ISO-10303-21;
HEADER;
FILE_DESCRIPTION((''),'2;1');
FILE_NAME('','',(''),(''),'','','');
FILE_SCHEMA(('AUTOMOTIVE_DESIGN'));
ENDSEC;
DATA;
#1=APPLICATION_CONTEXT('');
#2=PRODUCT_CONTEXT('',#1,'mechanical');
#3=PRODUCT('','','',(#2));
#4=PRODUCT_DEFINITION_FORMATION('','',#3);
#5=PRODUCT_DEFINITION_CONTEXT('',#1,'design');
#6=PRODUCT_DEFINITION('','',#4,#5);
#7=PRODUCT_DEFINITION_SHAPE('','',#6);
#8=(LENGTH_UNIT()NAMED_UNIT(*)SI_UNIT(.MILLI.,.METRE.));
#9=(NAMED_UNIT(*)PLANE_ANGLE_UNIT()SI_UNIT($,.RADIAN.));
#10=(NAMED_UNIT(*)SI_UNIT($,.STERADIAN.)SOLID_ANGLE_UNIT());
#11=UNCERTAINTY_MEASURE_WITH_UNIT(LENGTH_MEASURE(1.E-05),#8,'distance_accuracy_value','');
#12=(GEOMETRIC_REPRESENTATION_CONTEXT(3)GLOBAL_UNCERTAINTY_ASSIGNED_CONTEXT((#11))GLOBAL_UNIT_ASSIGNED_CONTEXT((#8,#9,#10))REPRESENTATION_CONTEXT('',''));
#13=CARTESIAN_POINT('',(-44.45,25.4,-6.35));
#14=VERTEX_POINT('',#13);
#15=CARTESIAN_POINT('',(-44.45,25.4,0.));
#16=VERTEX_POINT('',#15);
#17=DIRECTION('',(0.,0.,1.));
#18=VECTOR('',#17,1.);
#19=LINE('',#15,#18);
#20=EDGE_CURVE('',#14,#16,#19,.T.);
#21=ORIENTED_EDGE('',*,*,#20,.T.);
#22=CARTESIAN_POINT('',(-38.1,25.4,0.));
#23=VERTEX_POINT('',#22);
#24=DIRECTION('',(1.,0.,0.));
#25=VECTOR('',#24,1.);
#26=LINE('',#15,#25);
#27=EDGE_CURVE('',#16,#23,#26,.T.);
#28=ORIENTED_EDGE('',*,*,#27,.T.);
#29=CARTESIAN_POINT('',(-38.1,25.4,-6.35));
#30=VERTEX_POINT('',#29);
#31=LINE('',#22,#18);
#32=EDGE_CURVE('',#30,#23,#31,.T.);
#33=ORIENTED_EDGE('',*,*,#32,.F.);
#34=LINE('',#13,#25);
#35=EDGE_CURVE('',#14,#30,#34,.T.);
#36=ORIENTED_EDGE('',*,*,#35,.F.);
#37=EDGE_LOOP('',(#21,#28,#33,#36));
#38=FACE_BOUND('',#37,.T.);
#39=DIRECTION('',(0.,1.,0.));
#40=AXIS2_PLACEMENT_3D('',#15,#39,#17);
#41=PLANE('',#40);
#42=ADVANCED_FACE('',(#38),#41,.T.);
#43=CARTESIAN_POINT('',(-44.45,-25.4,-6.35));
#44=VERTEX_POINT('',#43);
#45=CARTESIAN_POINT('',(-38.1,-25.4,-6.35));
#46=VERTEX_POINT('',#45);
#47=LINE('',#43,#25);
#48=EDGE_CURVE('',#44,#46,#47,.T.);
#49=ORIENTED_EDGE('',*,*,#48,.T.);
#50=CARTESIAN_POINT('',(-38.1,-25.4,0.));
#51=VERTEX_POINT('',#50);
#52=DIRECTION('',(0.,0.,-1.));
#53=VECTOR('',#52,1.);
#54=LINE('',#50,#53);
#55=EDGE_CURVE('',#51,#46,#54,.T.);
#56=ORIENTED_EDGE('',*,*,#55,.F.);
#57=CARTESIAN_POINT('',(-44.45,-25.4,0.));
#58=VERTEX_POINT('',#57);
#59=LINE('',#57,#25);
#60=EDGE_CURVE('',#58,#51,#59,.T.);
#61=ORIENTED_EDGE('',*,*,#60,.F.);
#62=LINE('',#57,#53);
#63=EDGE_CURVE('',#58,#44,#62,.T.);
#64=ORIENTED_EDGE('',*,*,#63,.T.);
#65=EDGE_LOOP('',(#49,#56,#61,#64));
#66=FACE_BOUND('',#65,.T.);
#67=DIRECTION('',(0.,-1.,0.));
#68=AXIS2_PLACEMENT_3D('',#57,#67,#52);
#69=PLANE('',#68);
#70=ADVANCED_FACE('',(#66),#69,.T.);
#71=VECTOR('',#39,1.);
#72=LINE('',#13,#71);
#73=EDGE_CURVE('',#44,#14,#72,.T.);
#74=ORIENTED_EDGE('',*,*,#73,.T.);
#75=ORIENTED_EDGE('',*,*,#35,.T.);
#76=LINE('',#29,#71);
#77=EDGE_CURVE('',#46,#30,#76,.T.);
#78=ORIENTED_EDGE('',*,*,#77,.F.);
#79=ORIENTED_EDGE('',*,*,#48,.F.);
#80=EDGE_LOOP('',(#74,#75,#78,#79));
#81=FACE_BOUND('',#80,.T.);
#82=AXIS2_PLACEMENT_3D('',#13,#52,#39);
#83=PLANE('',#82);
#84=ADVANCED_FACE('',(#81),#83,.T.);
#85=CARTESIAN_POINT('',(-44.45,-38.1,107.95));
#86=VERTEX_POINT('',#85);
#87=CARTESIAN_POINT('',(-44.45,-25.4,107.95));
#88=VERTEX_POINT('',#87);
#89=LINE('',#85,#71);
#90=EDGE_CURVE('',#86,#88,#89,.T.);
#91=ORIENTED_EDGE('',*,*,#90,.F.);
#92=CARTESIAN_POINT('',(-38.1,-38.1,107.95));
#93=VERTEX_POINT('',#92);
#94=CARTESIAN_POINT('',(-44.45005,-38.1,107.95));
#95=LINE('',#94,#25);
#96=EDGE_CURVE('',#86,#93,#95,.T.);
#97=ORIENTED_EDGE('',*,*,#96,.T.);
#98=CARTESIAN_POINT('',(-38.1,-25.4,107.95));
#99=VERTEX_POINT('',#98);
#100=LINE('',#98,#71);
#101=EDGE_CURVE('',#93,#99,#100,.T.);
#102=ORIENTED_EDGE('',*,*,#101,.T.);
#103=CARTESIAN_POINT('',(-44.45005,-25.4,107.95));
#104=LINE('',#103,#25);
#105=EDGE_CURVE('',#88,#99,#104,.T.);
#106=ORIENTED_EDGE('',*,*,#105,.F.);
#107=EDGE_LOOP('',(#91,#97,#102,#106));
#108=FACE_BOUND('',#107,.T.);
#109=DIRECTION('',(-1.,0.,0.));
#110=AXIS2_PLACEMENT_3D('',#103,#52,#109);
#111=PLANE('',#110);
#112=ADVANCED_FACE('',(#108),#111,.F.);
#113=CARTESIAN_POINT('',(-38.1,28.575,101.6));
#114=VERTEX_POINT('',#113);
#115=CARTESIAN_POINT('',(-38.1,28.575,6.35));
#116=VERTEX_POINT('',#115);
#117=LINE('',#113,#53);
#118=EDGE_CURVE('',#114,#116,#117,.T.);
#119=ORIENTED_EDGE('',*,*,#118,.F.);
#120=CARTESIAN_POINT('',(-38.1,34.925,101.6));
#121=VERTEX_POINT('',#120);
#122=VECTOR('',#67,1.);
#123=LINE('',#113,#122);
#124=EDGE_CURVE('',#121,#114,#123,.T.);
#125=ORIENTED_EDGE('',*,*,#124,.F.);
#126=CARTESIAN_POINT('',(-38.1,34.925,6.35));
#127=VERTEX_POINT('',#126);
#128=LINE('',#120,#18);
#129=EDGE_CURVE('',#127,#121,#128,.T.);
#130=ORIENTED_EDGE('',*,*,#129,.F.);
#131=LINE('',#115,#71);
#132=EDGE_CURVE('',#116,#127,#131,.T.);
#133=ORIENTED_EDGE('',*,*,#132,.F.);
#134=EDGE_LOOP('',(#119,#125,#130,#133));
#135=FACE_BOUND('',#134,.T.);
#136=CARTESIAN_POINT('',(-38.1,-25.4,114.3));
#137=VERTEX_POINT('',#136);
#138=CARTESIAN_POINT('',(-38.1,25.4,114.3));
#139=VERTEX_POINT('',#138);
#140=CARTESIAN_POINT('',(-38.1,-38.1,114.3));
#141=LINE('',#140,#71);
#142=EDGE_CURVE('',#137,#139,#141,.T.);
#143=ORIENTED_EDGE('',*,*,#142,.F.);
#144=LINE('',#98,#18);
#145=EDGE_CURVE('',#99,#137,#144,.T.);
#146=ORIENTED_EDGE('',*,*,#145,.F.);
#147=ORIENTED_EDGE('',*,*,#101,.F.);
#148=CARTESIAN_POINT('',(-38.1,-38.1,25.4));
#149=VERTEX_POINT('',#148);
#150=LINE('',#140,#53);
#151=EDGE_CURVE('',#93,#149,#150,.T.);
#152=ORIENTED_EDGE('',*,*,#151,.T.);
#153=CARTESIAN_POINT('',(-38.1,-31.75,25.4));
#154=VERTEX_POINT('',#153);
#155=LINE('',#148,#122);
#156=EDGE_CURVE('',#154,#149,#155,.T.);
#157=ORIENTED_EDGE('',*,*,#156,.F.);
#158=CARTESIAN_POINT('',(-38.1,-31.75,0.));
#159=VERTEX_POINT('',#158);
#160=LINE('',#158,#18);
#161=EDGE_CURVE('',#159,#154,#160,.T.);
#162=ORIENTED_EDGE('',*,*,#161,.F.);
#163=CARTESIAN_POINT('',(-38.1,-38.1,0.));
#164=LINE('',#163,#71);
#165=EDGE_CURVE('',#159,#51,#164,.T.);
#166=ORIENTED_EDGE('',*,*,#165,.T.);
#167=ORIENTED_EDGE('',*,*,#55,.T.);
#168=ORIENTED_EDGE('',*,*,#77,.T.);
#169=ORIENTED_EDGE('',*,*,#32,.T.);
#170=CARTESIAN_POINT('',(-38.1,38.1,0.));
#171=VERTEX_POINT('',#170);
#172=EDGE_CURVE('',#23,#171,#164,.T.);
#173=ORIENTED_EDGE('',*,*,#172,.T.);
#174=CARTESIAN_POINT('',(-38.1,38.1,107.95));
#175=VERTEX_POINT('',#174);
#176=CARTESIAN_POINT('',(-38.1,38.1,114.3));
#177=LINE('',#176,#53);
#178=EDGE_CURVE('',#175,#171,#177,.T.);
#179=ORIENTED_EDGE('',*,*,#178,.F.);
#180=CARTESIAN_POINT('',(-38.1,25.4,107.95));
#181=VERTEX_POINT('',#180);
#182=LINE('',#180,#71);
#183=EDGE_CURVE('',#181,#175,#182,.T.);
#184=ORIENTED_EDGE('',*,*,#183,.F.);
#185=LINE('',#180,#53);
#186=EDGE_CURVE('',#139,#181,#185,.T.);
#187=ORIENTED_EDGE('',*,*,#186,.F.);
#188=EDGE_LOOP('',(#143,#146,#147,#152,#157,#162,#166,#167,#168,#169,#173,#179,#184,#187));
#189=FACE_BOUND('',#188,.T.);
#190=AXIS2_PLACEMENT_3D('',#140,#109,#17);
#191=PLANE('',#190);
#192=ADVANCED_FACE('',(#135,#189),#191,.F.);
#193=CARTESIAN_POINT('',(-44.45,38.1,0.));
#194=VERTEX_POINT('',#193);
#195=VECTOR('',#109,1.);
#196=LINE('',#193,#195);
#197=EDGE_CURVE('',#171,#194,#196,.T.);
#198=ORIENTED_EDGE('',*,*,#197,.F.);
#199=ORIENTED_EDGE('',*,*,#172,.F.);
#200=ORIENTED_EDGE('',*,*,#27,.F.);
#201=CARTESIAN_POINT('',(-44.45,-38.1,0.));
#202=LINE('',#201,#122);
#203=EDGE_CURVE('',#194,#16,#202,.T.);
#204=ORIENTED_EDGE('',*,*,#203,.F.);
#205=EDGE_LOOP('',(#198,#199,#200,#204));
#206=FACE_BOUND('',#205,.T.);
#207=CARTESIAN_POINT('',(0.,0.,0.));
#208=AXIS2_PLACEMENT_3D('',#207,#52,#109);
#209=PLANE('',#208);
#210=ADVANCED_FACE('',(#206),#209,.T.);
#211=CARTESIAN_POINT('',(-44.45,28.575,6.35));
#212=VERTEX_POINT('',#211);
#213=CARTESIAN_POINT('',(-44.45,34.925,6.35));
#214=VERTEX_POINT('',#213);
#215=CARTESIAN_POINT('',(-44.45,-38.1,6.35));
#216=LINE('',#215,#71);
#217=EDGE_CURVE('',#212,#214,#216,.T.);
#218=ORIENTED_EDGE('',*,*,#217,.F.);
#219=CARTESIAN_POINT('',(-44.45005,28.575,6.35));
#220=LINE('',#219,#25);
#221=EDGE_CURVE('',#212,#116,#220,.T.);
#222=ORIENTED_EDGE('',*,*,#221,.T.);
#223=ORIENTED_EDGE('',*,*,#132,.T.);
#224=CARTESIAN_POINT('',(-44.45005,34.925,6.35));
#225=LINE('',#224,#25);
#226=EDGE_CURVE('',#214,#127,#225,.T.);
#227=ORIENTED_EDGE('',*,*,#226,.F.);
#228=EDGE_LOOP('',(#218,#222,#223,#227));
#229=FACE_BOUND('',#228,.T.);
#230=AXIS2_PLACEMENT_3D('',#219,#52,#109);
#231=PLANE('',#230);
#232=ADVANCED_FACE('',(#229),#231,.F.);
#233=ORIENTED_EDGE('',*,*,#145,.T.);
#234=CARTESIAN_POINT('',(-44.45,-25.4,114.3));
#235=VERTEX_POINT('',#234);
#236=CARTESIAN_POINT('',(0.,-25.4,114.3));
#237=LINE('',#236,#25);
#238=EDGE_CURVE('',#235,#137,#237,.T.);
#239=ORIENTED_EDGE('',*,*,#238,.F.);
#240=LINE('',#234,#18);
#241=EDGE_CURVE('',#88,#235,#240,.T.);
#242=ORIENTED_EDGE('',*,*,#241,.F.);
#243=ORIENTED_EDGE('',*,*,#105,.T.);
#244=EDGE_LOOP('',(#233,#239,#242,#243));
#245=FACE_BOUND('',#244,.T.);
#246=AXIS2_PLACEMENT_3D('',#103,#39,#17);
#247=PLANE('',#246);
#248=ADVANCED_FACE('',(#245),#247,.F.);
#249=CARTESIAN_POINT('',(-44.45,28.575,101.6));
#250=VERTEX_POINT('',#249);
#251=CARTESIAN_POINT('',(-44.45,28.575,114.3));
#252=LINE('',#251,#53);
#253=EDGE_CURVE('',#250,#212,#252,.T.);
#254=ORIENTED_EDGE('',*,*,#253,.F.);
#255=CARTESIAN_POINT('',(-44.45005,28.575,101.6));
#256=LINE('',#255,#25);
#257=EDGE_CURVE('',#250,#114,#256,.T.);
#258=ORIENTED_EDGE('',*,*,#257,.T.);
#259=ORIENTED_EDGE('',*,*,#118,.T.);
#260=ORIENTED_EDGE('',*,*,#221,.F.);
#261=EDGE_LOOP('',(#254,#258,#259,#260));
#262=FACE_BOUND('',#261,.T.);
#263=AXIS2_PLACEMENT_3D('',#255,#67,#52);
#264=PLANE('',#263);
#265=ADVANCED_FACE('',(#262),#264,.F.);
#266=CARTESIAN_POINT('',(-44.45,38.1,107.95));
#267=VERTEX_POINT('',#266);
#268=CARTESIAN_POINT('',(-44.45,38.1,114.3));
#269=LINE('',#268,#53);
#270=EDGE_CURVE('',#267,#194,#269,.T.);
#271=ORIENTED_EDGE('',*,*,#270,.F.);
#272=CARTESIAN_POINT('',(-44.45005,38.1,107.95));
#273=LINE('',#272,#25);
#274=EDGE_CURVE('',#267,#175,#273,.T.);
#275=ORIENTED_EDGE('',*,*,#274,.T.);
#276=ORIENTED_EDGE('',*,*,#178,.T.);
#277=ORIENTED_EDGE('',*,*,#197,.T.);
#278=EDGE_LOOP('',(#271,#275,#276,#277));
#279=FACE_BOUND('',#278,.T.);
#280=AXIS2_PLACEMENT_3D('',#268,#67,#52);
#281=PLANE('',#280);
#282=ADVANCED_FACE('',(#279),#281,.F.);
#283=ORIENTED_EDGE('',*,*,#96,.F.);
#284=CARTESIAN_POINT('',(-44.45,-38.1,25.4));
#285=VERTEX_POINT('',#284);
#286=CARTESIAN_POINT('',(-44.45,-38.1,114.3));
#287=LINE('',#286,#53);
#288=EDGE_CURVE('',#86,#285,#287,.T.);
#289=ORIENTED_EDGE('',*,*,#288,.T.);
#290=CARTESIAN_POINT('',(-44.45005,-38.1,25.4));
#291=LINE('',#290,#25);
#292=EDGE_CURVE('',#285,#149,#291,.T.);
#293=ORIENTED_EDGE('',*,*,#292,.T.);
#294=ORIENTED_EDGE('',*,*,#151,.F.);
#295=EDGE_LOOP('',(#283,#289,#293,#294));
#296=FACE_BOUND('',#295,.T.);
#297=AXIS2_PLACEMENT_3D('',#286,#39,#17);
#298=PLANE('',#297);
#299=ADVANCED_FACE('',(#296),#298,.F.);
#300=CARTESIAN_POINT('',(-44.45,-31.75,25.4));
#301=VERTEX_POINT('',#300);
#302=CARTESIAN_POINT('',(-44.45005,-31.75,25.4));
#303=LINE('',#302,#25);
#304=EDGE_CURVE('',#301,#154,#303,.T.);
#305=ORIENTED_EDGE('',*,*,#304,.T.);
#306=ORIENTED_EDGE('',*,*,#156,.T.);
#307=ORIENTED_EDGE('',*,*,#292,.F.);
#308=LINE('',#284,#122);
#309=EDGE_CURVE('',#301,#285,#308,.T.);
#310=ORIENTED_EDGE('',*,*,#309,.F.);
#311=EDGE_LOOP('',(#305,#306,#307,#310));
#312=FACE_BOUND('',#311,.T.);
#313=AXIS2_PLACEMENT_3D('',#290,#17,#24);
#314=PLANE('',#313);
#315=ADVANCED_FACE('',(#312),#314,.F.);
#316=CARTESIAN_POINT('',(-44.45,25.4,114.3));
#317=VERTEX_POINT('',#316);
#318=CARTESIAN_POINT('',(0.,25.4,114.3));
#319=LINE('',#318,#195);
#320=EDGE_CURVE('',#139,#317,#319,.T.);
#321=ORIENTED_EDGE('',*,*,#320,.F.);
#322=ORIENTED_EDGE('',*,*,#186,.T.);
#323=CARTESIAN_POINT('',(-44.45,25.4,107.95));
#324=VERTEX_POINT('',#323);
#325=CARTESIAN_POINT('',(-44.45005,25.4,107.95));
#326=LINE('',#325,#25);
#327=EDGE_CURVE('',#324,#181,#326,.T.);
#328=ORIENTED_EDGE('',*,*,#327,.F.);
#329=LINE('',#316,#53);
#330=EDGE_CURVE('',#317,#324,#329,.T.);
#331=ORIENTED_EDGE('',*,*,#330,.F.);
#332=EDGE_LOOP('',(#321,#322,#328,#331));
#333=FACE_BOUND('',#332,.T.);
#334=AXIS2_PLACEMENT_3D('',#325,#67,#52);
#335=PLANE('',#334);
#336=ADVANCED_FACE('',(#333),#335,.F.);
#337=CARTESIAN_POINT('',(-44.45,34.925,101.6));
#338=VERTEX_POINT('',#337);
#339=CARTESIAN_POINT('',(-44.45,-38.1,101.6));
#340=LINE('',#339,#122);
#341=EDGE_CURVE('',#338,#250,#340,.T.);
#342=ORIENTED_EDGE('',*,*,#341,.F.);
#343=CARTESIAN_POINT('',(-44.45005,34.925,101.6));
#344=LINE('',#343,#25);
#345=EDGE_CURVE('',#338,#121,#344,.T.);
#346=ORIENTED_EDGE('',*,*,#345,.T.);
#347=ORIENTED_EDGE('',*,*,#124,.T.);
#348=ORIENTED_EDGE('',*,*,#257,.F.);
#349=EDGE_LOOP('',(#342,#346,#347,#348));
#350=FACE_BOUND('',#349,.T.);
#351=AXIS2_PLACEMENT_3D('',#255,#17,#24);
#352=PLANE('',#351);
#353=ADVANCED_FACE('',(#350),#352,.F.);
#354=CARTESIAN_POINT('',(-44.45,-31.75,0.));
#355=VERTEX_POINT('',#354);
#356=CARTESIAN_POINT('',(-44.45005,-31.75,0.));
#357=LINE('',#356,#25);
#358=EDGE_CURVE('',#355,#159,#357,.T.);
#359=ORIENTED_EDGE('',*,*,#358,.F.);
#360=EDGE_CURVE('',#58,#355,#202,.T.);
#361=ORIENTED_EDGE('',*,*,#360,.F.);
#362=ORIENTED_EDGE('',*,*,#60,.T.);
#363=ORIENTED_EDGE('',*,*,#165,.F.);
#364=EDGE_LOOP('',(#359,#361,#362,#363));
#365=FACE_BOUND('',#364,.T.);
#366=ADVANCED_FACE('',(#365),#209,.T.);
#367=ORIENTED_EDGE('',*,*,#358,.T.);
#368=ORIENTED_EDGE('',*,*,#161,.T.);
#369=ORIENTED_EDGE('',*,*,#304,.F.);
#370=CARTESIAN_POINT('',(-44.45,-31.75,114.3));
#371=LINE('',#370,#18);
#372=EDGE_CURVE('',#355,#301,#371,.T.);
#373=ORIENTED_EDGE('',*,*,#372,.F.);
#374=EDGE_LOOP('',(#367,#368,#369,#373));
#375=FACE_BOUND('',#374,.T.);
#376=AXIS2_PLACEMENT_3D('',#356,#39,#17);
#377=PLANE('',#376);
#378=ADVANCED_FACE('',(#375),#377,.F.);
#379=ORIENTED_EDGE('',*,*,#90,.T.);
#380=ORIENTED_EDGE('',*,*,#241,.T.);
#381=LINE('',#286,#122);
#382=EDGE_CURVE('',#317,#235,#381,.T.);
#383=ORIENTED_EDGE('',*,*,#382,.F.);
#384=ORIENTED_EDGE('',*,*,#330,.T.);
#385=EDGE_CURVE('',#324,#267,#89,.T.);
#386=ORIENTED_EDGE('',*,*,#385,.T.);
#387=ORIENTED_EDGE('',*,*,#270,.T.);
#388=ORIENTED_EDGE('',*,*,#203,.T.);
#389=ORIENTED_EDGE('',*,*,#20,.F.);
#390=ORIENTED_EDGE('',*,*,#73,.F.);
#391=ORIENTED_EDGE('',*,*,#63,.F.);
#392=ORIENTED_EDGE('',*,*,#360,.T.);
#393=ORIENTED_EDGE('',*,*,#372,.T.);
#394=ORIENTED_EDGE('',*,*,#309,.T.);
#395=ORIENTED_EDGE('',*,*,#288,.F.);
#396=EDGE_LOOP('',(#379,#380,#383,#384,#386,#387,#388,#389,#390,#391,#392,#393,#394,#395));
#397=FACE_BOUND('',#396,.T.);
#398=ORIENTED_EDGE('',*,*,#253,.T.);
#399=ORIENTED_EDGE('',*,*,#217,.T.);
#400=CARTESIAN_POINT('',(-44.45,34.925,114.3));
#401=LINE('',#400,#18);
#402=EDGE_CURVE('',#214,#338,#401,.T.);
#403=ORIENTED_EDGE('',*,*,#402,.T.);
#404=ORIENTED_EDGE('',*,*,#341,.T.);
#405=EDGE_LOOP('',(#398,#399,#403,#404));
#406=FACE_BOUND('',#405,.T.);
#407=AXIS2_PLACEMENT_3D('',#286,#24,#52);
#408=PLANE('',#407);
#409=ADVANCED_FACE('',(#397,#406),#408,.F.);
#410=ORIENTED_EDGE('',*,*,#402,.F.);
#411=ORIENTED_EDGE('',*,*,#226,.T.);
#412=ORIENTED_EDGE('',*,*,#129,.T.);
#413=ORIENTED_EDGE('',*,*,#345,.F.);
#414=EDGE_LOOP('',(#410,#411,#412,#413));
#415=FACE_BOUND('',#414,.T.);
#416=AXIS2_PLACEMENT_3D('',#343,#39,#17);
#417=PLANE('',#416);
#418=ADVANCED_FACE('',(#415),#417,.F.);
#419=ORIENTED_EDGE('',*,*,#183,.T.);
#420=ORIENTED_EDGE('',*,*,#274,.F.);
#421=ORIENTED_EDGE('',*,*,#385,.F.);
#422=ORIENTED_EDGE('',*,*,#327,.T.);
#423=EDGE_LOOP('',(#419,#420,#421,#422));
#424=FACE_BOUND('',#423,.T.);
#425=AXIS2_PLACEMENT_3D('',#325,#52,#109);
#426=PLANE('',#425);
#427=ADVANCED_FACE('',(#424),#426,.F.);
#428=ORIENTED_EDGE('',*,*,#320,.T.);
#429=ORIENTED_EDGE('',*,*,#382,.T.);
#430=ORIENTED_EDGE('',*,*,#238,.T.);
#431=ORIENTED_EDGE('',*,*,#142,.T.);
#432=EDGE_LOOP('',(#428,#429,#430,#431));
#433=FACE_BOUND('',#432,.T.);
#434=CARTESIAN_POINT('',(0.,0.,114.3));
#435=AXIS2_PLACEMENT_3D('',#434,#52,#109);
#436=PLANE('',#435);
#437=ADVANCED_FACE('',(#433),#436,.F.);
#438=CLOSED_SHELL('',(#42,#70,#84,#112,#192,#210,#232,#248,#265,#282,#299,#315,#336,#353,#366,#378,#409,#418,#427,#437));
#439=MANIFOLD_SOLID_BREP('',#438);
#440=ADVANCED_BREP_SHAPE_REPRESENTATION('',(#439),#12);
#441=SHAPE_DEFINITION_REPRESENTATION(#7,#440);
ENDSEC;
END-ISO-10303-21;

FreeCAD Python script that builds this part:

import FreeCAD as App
import Part
import Sketcher

V = App.Vector
Q = App.Units.Quantity


def add_polygon(sketch, points):
    """Adds a closed chain of lines whose ends are joined by coincident constraints."""
    first, n = sketch.GeometryCount, len(points)
    for a, b in zip(points, points[1:] + points[:1]):
        sketch.addGeometry(Part.LineSegment(App.Vector(*a, 0), App.Vector(*b, 0)), False)
    for i in range(n):
        sketch.addConstraint(Sketcher.Constraint("Coincident", first + i, 2, first + (i + 1) % n, 1))

doc = App.newDocument("Part")
body = doc.addObject("PartDesign::Body", "Body")

sketch1 = doc.addObject("Sketcher::SketchObject", "Sketch")
body.addObject(sketch1)
sketch1.AttachmentSupport = (doc.XY_Plane, [""])
sketch1.MapMode = "FlatFace"
add_polygon(sketch1, [(-44.45, 38.1), (-44.45, -38.1), (-38.1, -38.1), (-38.1, 38.1)])
sketch1.addConstraint([
    Sketcher.Constraint("Vertical", 0),
    Sketcher.Constraint("Horizontal", 1),
    Sketcher.Constraint("Vertical", 2),
    Sketcher.Constraint("Horizontal", 3),
    Sketcher.Constraint("DistanceY", 0, 2, 0, 1, Q("3 in")),
    Sketcher.Constraint("DistanceX", 1, 1, 1, 2, Q("0.25 in")),
    Sketcher.Constraint("DistanceY", 0, 2, -1, 1, Q("1.5 in")),
    Sketcher.Constraint("DistanceX", 1, 2, -1, 1, Q("1.5 in")),
])
pad1 = doc.addObject("PartDesign::Pad", "Pad")
body.addObject(pad1)
pad1.Profile = sketch1
pad1.Length = Q("4.5 in")

sketch2 = doc.addObject("Sketcher::SketchObject", "Sketch001")
body.addObject(sketch2)
sketch2.AttachmentSupport = (doc.YZ_Plane, [""])
sketch2.MapMode = "FlatFace"
sketch2.AttachmentOffset = App.Placement(V(0, 0, -1.5 * 25.4), App.Rotation())
add_polygon(sketch2, [(25.4, 0), (-25.4, 0), (-25.4, -6.35), (25.4, -6.35)])
sketch2.addConstraint([
    Sketcher.Constraint("Horizontal", 0),
    Sketcher.Constraint("Vertical", 1),
    Sketcher.Constraint("Horizontal", 2),
    Sketcher.Constraint("Vertical", 3),
    Sketcher.Constraint("Symmetric", 0, 2, 3, 2, -1, 1),
    Sketcher.Constraint("DistanceX", 0, 2, 0, 1, Q("2 in")),
    Sketcher.Constraint("DistanceY", 1, 2, 1, 1, Q("0.25 in")),
])
pad2 = doc.addObject("PartDesign::Pad", "Pad001")
body.addObject(pad2)
pad2.Profile = sketch2
pad2.Length = Q("0.25 in")
pad2.Reversed = True

sketch3 = doc.addObject("Sketcher::SketchObject", "Sketch002")
body.addObject(sketch3)
sketch3.AttachmentSupport = (doc.YZ_Plane, [""])
sketch3.MapMode = "FlatFace"
sketch3.AttachmentOffset = App.Placement(V(0, 0, -1.5 * 25.4), App.Rotation())
add_polygon(sketch3, [(-25.4, 114.3), (-38.1, 114.3), (-38.1, 107.95), (-25.4, 107.95)])
add_polygon(sketch3, [(38.1, 114.3), (25.4, 114.3), (25.4, 107.95), (38.1, 107.95)])
add_polygon(sketch3, [(34.925, 101.6), (28.575, 101.6), (28.575, 6.35), (34.925, 6.35)])
add_polygon(sketch3, [(-31.75, 25.4), (-38.1, 25.4), (-38.1, 0), (-31.75, 0)])
sketch3.addConstraint([
    Sketcher.Constraint("Horizontal", 0),
    Sketcher.Constraint("Vertical", 1),
    Sketcher.Constraint("Horizontal", 2),
    Sketcher.Constraint("Vertical", 3),
    Sketcher.Constraint("Horizontal", 4),
    Sketcher.Constraint("Vertical", 5),
    Sketcher.Constraint("Horizontal", 6),
    Sketcher.Constraint("Vertical", 7),
    Sketcher.Constraint("Horizontal", 8),
    Sketcher.Constraint("Vertical", 9),
    Sketcher.Constraint("Horizontal", 10),
    Sketcher.Constraint("Vertical", 11),
    Sketcher.Constraint("Horizontal", 12),
    Sketcher.Constraint("Vertical", 13),
    Sketcher.Constraint("Horizontal", 14),
    Sketcher.Constraint("Vertical", 15),
    Sketcher.Constraint("Symmetric", 3, 2, 4, 2, -2),
    Sketcher.Constraint("Symmetric", 1, 2, 6, 2, -2),
    Sketcher.Constraint("PointOnObject", 13, 2, -1),
    Sketcher.Constraint("Vertical", 1, 2, 12, 2),
    Sketcher.Constraint("Equal", 10, 12),
    Sketcher.Constraint("Equal", 14, 1),
    Sketcher.Constraint("DistanceY", 13, 2, 13, 1, Q("1 in")),
    Sketcher.Constraint("DistanceX", 0, 2, 0, 1, Q("0.5 in")),
    Sketcher.Constraint("DistanceX", 2, 2, -1, 1, Q("1 in")),
    Sketcher.Constraint("DistanceY", -1, 1, 8, 2, Q("4 in")),
    Sketcher.Constraint("DistanceY", 9, 2, 5, 2, Q("4 in")),
    Sketcher.Constraint("DistanceX", 8, 2, 8, 1, Q("0.25 in")),
    Sketcher.Constraint("DistanceY", 9, 2, 9, 1, Q("3.75 in")),
    Sketcher.Constraint("DistanceX", -1, 1, 8, 2, Q("1.125 in")),
])
pocket1 = doc.addObject("PartDesign::Pocket", "Pocket")
body.addObject(pocket1)
pocket1.Profile = sketch3
pocket1.Type = "ThroughAll"

doc.recompute()
